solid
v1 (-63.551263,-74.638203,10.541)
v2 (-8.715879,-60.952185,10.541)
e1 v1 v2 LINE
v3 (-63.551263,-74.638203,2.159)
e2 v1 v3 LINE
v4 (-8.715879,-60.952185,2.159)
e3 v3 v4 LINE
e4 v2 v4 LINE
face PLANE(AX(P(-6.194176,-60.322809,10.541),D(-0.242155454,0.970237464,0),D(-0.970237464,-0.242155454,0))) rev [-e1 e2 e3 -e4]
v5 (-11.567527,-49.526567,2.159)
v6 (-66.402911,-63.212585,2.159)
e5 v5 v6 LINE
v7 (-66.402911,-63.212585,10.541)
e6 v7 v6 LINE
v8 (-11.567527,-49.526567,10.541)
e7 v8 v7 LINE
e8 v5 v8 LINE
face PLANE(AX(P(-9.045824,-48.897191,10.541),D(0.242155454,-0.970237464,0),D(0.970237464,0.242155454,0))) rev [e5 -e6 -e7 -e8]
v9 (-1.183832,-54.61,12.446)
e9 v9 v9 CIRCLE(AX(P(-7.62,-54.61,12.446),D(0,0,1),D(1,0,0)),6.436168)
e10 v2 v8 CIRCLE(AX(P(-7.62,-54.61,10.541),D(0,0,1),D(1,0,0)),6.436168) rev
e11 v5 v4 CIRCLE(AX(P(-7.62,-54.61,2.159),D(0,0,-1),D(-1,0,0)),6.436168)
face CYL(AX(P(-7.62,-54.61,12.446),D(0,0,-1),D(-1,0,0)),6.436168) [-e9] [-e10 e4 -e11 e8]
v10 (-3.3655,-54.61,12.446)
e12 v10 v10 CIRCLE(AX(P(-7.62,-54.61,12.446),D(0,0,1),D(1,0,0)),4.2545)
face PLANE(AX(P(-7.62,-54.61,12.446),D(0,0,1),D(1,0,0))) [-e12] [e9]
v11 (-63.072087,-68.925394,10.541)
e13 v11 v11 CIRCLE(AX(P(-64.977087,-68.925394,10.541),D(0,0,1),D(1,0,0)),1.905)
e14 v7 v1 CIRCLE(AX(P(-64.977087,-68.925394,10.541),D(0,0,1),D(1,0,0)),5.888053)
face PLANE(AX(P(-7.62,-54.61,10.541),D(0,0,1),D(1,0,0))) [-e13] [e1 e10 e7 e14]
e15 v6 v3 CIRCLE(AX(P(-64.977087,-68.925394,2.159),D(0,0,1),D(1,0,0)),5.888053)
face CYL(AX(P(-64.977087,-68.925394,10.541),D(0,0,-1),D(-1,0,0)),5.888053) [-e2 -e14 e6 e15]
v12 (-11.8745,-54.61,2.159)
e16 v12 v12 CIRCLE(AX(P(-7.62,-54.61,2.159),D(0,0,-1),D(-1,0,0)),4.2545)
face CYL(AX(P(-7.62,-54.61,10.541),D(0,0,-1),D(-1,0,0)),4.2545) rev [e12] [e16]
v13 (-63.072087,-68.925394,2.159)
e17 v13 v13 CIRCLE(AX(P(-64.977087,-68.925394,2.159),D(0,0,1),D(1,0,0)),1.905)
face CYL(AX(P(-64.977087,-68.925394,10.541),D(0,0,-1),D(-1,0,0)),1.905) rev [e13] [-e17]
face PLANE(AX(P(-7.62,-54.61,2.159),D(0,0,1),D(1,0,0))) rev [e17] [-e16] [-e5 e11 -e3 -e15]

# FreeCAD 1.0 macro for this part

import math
import FreeCAD as App
import Part
import Sketcher
from FreeCAD import Vector
Q = App.Units.Quantity

doc = App.newDocument("Part")
body = doc.addObject("PartDesign::Body", "Body")

# Sketch on XY plane
sketch1 = doc.addObject("Sketcher::SketchObject", "Sketch")
body.addObject(sketch1)
sketch1.AttachmentSupport = (doc.XY_Plane, [""])
sketch1.MapMode = "FlatFace"
sketch1.AttachmentOffset = App.Placement(Vector(0, 0, 0.25 * 25.4), App.Rotation())
sketch1.addGeometry([
    Part.LineSegment(Vector(-63.551263, -74.638203, 0), Vector(-6.194176, -60.322809, 0)),  # 0
    Part.ArcOfCircle(Part.Circle(Vector(-7.62, -54.61, 0), Vector(0, 0, 1), 5.888053), math.radians(-75.986208), math.radians(104.013792)),  # 1
    Part.LineSegment(Vector(-9.045824, -48.897191, 0), Vector(-66.402911, -63.212585, 0)),  # 2
    Part.ArcOfCircle(Part.Circle(Vector(-64.977087, -68.925394, 0), Vector(0, 0, 1), 5.888053), math.radians(104.013792), math.radians(284.013792)),  # 3
    Part.Circle(Vector(-64.977087, -68.925394, 0), Vector(0, 0, 1), 1.905),  # 4
    Part.Circle(Vector(-7.62, -54.61, 0), Vector(0, 0, 1), 4.2545),  # 5
], False)
sketch1.addConstraint([
    Sketcher.Constraint("Coincident", 0, 2, 1, 1),
    Sketcher.Constraint("Coincident", 1, 2, 2, 1),
    Sketcher.Constraint("Coincident", 2, 2, 3, 1),
    Sketcher.Constraint("Coincident", 3, 2, 0, 1),
    Sketcher.Constraint("Coincident", 4, 3, 3, 3),
    Sketcher.Constraint("Coincident", 5, 3, 1, 3),
    Sketcher.Constraint("Diameter", 4, Q("0.15 in")),
    Sketcher.Constraint("Diameter", 5, Q("0.335 in")),
    Sketcher.Constraint("DistanceX", 1, 3, -1, 1, Q("0.3 in")),
    Sketcher.Constraint("DistanceY", 1, 3, -1, 1, Q("2.15 in")),
    Sketcher.Constraint("Radius", 1, 5.888053),
    Sketcher.Constraint("Radius", 3, 5.888053),
    Sketcher.Constraint("DistanceY", 0, 2, -1, 1, 60.322809),
    Sketcher.Constraint("DistanceY", 1, 2, -1, 1, 48.897191),
    Sketcher.Constraint("DistanceX", 2, 2, -1, 1, 66.402911),
    Sketcher.Constraint("DistanceX", 3, 3, 0, 2, 58.782911),
    Sketcher.Constraint("DistanceY", 3, 2, 3, 3, 5.712809),
    Sketcher.Constraint("Distance", 0, 59.116545),
])
pad1 = doc.addObject("PartDesign::Pad", "Pad")
body.addObject(pad1)
pad1.Profile = sketch1
pad1.Length = Q("0.33 in")
pad1.Midplane = True

# Sketch on XY plane
sketch2 = doc.addObject("Sketcher::SketchObject", "Sketch001")
body.addObject(sketch2)
sketch2.AttachmentSupport = (doc.XY_Plane, [""])
sketch2.MapMode = "FlatFace"
sketch2.AttachmentOffset = App.Placement(Vector(0, 0, 0.25 * 25.4), App.Rotation())
sketch2.addGeometry([
    Part.Circle(Vector(-7.6, -54.6, 0), Vector(0, 0, 1), 6.4),
    Part.Circle(Vector(-7.6, -54.6, 0), Vector(0, 0, 1), 4.3),
], False)
sketch2.addConstraint([
    Sketcher.Constraint("Coincident", 1, 3, 0, 3),
    Sketcher.Constraint("Diameter", 1, Q("0.335 in")),
    Sketcher.Constraint("DistanceX", 0, 3, -1, 1, Q("0.3 in")),
    Sketcher.Constraint("DistanceY", 0, 3, -1, 1, Q("2.15 in")),
    Sketcher.Constraint("Diameter", 0, 12.872336),
])
pad2 = doc.addObject("PartDesign::Pad", "Pad001")
body.addObject(pad2)
pad2.Profile = sketch2
pad2.Length = Q("0.48 in")
pad2.Midplane = True

# Sketch on XY plane
sketch3 = doc.addObject("Sketcher::SketchObject", "Sketch002")
body.addObject(sketch3)
sketch3.AttachmentSupport = (doc.XY_Plane, [""])
sketch3.MapMode = "FlatFace"
sketch3.AttachmentOffset = App.Placement(Vector(0, 0, 0.085 * 25.4), App.Rotation())
sketch3.addGeometry(Part.Circle(Vector(-8, -55, 0), Vector(0, 0, 1), 6), False)
sketch3.addConstraint([
    Sketcher.Constraint("DistanceX", 0, 3, -1, 1, Q("0.3 in")),
    Sketcher.Constraint("DistanceY", 0, 3, -1, 1, Q("2.15 in")),
    Sketcher.Constraint("Diameter", 0, 12.872336),
])
pocket1 = doc.addObject("PartDesign::Pocket", "Pocket")
body.addObject(pocket1)
pocket1.Profile = sketch3
pocket1.Length = Q("0.075 in")

doc.recompute()
